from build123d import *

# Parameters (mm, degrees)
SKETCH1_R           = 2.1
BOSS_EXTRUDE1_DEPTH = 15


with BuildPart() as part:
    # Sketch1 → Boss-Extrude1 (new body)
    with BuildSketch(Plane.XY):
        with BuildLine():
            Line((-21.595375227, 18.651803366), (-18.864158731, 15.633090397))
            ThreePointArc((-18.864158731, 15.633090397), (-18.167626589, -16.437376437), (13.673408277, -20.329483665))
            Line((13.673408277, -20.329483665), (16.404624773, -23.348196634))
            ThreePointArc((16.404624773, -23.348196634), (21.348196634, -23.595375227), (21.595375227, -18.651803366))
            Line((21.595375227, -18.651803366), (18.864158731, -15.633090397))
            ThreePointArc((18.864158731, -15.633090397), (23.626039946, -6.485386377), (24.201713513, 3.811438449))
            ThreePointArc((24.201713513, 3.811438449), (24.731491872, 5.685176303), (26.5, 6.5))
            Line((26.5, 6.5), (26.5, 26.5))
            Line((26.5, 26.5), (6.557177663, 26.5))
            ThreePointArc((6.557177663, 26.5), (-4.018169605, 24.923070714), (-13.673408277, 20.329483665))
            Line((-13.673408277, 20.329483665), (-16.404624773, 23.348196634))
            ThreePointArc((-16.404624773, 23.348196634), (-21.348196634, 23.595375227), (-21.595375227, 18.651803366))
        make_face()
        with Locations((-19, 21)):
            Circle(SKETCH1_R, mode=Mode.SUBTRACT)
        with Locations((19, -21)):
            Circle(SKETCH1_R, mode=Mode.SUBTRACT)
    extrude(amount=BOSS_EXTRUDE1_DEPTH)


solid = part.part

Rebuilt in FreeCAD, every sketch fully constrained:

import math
import FreeCAD as App
import Part
import Sketcher

doc = App.newDocument("Part")
body = doc.addObject("PartDesign::Body", "Body")

# Sketch on XY plane
sketch1 = body.newObject("Sketcher::SketchObject", "Sketch")
sketch1.AttachmentSupport = (doc.getObject("XY_Plane"), [""])
sketch1.MapMode = "FlatFace"
sketch1.addGeometry([
    Part.LineSegment(App.Vector(-21.6, 18.7, 0), App.Vector(-18.9, 15.6, 0)),  # 0
    Part.ArcOfCircle(Part.Circle(App.Vector(0, 0, 0), App.Vector(0, 0, 1), 24.5), math.radians(140), math.radians(304)),  # 1
    Part.LineSegment(App.Vector(13.7, -20.3, 0), App.Vector(16.4, -23.3, 0)),  # 2
    Part.ArcOfCircle(Part.Circle(App.Vector(19, -21, 0), App.Vector(0, 0, 1), 3.5), math.radians(-138), math.radians(42)),  # 3
    Part.LineSegment(App.Vector(21.6, -18.7, 0), App.Vector(18.9, -15.6, 0)),  # 4
    Part.ArcOfCircle(Part.Circle(App.Vector(0, 0, 0), App.Vector(0, 0, 1), 24.5), math.radians(-40), math.radians(9)),  # 5
    Part.ArcOfCircle(Part.Circle(App.Vector(26.5, 4.2, 0), App.Vector(0, 0, 1), 2.3), math.radians(90), math.radians(189)),  # 6
    Part.LineSegment(App.Vector(26.5, 6.5, 0), App.Vector(26.5, 26.5, 0)),  # 7
    Part.LineSegment(App.Vector(26.5, 26.5, 0), App.Vector(6.6, 26.5, 0)),  # 8
    Part.ArcOfCircle(Part.Circle(App.Vector(6.6, -9.7, 0), App.Vector(0, 0, 1), 36.2), math.radians(90), math.radians(124)),  # 9
    Part.LineSegment(App.Vector(-13.7, 20.3, 0), App.Vector(-16.4, 23.3, 0)),  # 10
    Part.ArcOfCircle(Part.Circle(App.Vector(-19, 21, 0), App.Vector(0, 0, 1), 3.5), math.radians(42), math.radians(222)),  # 11
    Part.Circle(App.Vector(19, -21, 0), App.Vector(0, 0, 1), 2.1),  # 12
    Part.Circle(App.Vector(-19, 21, 0), App.Vector(0, 0, 1), 2.1),  # 13
], False)
sketch1.addConstraint([
    Sketcher.Constraint("Coincident", 0, 2, 1, 1),
    Sketcher.Constraint("Coincident", 1, 2, 2, 1),
    Sketcher.Constraint("Tangent", 2, 2, 3, 1),
    Sketcher.Constraint("Tangent", 3, 2, 4, 1),
    Sketcher.Constraint("Coincident", 4, 2, 5, 1),
    Sketcher.Constraint("Tangent", 5, 2, 6, 2),
    Sketcher.Constraint("Coincident", 6, 1, 7, 1),
    Sketcher.Constraint("Coincident", 7, 2, 8, 1),
    Sketcher.Constraint("Tangent", 8, 2, 9, 1),
    Sketcher.Constraint("Coincident", 9, 2, 10, 1),
    Sketcher.Constraint("Tangent", 10, 2, 11, 1),
    Sketcher.Constraint("Tangent", 11, 2, 0, 1),
    Sketcher.Constraint("Vertical", 7),
    Sketcher.Constraint("Horizontal", 8),
    Sketcher.Constraint("Coincident", 1, 3, -1, 1),
    Sketcher.Constraint("Coincident", 5, 3, -1, 1),
    Sketcher.Constraint("Coincident", 12, 3, 3, 3),
    Sketcher.Constraint("Coincident", 13, 3, 11, 3),
    Sketcher.Constraint("Equal", 1, 5),
    Sketcher.Constraint("Equal", 3, 11),
    Sketcher.Constraint("Equal", 12, 13),
    Sketcher.Constraint("Symmetric", 3, 3, 11, 3, -1, 1),
    Sketcher.Constraint("Symmetric", 1, 2, 9, 2, -1, 1),
    Sketcher.Constraint("Parallel", 0, 2),
    Sketcher.Constraint("Parallel", 2, 4),
    Sketcher.Constraint("Equal", 0, 2),
    Sketcher.Constraint("Diameter", 12, 4.2),
    Sketcher.Constraint("Radius", 1, 24.5),
    Sketcher.Constraint("Radius", 3, 3.5),
    Sketcher.Constraint("DistanceY", 7, 1, 7, 2, 20.0),
    Sketcher.Constraint("DistanceX", -1, 1, 3, 3, 19.0),
    Sketcher.Constraint("DistanceY", 3, 3, -1, 1, 21.0),
    Sketcher.Constraint("DistanceX", -1, 1, 6, 3, 26.5),
    Sketcher.Constraint("DistanceX", -1, 1, 6, 1, 26.5),
    Sketcher.Constraint("DistanceY", -1, 1, 6, 1, 6.5),
    Sketcher.Constraint("Radius", 9, 36.249145),
])
pad1 = body.newObject("PartDesign::Pad", "Pad")
pad1.Profile = sketch1
pad1.Length = 15

doc.recompute()
